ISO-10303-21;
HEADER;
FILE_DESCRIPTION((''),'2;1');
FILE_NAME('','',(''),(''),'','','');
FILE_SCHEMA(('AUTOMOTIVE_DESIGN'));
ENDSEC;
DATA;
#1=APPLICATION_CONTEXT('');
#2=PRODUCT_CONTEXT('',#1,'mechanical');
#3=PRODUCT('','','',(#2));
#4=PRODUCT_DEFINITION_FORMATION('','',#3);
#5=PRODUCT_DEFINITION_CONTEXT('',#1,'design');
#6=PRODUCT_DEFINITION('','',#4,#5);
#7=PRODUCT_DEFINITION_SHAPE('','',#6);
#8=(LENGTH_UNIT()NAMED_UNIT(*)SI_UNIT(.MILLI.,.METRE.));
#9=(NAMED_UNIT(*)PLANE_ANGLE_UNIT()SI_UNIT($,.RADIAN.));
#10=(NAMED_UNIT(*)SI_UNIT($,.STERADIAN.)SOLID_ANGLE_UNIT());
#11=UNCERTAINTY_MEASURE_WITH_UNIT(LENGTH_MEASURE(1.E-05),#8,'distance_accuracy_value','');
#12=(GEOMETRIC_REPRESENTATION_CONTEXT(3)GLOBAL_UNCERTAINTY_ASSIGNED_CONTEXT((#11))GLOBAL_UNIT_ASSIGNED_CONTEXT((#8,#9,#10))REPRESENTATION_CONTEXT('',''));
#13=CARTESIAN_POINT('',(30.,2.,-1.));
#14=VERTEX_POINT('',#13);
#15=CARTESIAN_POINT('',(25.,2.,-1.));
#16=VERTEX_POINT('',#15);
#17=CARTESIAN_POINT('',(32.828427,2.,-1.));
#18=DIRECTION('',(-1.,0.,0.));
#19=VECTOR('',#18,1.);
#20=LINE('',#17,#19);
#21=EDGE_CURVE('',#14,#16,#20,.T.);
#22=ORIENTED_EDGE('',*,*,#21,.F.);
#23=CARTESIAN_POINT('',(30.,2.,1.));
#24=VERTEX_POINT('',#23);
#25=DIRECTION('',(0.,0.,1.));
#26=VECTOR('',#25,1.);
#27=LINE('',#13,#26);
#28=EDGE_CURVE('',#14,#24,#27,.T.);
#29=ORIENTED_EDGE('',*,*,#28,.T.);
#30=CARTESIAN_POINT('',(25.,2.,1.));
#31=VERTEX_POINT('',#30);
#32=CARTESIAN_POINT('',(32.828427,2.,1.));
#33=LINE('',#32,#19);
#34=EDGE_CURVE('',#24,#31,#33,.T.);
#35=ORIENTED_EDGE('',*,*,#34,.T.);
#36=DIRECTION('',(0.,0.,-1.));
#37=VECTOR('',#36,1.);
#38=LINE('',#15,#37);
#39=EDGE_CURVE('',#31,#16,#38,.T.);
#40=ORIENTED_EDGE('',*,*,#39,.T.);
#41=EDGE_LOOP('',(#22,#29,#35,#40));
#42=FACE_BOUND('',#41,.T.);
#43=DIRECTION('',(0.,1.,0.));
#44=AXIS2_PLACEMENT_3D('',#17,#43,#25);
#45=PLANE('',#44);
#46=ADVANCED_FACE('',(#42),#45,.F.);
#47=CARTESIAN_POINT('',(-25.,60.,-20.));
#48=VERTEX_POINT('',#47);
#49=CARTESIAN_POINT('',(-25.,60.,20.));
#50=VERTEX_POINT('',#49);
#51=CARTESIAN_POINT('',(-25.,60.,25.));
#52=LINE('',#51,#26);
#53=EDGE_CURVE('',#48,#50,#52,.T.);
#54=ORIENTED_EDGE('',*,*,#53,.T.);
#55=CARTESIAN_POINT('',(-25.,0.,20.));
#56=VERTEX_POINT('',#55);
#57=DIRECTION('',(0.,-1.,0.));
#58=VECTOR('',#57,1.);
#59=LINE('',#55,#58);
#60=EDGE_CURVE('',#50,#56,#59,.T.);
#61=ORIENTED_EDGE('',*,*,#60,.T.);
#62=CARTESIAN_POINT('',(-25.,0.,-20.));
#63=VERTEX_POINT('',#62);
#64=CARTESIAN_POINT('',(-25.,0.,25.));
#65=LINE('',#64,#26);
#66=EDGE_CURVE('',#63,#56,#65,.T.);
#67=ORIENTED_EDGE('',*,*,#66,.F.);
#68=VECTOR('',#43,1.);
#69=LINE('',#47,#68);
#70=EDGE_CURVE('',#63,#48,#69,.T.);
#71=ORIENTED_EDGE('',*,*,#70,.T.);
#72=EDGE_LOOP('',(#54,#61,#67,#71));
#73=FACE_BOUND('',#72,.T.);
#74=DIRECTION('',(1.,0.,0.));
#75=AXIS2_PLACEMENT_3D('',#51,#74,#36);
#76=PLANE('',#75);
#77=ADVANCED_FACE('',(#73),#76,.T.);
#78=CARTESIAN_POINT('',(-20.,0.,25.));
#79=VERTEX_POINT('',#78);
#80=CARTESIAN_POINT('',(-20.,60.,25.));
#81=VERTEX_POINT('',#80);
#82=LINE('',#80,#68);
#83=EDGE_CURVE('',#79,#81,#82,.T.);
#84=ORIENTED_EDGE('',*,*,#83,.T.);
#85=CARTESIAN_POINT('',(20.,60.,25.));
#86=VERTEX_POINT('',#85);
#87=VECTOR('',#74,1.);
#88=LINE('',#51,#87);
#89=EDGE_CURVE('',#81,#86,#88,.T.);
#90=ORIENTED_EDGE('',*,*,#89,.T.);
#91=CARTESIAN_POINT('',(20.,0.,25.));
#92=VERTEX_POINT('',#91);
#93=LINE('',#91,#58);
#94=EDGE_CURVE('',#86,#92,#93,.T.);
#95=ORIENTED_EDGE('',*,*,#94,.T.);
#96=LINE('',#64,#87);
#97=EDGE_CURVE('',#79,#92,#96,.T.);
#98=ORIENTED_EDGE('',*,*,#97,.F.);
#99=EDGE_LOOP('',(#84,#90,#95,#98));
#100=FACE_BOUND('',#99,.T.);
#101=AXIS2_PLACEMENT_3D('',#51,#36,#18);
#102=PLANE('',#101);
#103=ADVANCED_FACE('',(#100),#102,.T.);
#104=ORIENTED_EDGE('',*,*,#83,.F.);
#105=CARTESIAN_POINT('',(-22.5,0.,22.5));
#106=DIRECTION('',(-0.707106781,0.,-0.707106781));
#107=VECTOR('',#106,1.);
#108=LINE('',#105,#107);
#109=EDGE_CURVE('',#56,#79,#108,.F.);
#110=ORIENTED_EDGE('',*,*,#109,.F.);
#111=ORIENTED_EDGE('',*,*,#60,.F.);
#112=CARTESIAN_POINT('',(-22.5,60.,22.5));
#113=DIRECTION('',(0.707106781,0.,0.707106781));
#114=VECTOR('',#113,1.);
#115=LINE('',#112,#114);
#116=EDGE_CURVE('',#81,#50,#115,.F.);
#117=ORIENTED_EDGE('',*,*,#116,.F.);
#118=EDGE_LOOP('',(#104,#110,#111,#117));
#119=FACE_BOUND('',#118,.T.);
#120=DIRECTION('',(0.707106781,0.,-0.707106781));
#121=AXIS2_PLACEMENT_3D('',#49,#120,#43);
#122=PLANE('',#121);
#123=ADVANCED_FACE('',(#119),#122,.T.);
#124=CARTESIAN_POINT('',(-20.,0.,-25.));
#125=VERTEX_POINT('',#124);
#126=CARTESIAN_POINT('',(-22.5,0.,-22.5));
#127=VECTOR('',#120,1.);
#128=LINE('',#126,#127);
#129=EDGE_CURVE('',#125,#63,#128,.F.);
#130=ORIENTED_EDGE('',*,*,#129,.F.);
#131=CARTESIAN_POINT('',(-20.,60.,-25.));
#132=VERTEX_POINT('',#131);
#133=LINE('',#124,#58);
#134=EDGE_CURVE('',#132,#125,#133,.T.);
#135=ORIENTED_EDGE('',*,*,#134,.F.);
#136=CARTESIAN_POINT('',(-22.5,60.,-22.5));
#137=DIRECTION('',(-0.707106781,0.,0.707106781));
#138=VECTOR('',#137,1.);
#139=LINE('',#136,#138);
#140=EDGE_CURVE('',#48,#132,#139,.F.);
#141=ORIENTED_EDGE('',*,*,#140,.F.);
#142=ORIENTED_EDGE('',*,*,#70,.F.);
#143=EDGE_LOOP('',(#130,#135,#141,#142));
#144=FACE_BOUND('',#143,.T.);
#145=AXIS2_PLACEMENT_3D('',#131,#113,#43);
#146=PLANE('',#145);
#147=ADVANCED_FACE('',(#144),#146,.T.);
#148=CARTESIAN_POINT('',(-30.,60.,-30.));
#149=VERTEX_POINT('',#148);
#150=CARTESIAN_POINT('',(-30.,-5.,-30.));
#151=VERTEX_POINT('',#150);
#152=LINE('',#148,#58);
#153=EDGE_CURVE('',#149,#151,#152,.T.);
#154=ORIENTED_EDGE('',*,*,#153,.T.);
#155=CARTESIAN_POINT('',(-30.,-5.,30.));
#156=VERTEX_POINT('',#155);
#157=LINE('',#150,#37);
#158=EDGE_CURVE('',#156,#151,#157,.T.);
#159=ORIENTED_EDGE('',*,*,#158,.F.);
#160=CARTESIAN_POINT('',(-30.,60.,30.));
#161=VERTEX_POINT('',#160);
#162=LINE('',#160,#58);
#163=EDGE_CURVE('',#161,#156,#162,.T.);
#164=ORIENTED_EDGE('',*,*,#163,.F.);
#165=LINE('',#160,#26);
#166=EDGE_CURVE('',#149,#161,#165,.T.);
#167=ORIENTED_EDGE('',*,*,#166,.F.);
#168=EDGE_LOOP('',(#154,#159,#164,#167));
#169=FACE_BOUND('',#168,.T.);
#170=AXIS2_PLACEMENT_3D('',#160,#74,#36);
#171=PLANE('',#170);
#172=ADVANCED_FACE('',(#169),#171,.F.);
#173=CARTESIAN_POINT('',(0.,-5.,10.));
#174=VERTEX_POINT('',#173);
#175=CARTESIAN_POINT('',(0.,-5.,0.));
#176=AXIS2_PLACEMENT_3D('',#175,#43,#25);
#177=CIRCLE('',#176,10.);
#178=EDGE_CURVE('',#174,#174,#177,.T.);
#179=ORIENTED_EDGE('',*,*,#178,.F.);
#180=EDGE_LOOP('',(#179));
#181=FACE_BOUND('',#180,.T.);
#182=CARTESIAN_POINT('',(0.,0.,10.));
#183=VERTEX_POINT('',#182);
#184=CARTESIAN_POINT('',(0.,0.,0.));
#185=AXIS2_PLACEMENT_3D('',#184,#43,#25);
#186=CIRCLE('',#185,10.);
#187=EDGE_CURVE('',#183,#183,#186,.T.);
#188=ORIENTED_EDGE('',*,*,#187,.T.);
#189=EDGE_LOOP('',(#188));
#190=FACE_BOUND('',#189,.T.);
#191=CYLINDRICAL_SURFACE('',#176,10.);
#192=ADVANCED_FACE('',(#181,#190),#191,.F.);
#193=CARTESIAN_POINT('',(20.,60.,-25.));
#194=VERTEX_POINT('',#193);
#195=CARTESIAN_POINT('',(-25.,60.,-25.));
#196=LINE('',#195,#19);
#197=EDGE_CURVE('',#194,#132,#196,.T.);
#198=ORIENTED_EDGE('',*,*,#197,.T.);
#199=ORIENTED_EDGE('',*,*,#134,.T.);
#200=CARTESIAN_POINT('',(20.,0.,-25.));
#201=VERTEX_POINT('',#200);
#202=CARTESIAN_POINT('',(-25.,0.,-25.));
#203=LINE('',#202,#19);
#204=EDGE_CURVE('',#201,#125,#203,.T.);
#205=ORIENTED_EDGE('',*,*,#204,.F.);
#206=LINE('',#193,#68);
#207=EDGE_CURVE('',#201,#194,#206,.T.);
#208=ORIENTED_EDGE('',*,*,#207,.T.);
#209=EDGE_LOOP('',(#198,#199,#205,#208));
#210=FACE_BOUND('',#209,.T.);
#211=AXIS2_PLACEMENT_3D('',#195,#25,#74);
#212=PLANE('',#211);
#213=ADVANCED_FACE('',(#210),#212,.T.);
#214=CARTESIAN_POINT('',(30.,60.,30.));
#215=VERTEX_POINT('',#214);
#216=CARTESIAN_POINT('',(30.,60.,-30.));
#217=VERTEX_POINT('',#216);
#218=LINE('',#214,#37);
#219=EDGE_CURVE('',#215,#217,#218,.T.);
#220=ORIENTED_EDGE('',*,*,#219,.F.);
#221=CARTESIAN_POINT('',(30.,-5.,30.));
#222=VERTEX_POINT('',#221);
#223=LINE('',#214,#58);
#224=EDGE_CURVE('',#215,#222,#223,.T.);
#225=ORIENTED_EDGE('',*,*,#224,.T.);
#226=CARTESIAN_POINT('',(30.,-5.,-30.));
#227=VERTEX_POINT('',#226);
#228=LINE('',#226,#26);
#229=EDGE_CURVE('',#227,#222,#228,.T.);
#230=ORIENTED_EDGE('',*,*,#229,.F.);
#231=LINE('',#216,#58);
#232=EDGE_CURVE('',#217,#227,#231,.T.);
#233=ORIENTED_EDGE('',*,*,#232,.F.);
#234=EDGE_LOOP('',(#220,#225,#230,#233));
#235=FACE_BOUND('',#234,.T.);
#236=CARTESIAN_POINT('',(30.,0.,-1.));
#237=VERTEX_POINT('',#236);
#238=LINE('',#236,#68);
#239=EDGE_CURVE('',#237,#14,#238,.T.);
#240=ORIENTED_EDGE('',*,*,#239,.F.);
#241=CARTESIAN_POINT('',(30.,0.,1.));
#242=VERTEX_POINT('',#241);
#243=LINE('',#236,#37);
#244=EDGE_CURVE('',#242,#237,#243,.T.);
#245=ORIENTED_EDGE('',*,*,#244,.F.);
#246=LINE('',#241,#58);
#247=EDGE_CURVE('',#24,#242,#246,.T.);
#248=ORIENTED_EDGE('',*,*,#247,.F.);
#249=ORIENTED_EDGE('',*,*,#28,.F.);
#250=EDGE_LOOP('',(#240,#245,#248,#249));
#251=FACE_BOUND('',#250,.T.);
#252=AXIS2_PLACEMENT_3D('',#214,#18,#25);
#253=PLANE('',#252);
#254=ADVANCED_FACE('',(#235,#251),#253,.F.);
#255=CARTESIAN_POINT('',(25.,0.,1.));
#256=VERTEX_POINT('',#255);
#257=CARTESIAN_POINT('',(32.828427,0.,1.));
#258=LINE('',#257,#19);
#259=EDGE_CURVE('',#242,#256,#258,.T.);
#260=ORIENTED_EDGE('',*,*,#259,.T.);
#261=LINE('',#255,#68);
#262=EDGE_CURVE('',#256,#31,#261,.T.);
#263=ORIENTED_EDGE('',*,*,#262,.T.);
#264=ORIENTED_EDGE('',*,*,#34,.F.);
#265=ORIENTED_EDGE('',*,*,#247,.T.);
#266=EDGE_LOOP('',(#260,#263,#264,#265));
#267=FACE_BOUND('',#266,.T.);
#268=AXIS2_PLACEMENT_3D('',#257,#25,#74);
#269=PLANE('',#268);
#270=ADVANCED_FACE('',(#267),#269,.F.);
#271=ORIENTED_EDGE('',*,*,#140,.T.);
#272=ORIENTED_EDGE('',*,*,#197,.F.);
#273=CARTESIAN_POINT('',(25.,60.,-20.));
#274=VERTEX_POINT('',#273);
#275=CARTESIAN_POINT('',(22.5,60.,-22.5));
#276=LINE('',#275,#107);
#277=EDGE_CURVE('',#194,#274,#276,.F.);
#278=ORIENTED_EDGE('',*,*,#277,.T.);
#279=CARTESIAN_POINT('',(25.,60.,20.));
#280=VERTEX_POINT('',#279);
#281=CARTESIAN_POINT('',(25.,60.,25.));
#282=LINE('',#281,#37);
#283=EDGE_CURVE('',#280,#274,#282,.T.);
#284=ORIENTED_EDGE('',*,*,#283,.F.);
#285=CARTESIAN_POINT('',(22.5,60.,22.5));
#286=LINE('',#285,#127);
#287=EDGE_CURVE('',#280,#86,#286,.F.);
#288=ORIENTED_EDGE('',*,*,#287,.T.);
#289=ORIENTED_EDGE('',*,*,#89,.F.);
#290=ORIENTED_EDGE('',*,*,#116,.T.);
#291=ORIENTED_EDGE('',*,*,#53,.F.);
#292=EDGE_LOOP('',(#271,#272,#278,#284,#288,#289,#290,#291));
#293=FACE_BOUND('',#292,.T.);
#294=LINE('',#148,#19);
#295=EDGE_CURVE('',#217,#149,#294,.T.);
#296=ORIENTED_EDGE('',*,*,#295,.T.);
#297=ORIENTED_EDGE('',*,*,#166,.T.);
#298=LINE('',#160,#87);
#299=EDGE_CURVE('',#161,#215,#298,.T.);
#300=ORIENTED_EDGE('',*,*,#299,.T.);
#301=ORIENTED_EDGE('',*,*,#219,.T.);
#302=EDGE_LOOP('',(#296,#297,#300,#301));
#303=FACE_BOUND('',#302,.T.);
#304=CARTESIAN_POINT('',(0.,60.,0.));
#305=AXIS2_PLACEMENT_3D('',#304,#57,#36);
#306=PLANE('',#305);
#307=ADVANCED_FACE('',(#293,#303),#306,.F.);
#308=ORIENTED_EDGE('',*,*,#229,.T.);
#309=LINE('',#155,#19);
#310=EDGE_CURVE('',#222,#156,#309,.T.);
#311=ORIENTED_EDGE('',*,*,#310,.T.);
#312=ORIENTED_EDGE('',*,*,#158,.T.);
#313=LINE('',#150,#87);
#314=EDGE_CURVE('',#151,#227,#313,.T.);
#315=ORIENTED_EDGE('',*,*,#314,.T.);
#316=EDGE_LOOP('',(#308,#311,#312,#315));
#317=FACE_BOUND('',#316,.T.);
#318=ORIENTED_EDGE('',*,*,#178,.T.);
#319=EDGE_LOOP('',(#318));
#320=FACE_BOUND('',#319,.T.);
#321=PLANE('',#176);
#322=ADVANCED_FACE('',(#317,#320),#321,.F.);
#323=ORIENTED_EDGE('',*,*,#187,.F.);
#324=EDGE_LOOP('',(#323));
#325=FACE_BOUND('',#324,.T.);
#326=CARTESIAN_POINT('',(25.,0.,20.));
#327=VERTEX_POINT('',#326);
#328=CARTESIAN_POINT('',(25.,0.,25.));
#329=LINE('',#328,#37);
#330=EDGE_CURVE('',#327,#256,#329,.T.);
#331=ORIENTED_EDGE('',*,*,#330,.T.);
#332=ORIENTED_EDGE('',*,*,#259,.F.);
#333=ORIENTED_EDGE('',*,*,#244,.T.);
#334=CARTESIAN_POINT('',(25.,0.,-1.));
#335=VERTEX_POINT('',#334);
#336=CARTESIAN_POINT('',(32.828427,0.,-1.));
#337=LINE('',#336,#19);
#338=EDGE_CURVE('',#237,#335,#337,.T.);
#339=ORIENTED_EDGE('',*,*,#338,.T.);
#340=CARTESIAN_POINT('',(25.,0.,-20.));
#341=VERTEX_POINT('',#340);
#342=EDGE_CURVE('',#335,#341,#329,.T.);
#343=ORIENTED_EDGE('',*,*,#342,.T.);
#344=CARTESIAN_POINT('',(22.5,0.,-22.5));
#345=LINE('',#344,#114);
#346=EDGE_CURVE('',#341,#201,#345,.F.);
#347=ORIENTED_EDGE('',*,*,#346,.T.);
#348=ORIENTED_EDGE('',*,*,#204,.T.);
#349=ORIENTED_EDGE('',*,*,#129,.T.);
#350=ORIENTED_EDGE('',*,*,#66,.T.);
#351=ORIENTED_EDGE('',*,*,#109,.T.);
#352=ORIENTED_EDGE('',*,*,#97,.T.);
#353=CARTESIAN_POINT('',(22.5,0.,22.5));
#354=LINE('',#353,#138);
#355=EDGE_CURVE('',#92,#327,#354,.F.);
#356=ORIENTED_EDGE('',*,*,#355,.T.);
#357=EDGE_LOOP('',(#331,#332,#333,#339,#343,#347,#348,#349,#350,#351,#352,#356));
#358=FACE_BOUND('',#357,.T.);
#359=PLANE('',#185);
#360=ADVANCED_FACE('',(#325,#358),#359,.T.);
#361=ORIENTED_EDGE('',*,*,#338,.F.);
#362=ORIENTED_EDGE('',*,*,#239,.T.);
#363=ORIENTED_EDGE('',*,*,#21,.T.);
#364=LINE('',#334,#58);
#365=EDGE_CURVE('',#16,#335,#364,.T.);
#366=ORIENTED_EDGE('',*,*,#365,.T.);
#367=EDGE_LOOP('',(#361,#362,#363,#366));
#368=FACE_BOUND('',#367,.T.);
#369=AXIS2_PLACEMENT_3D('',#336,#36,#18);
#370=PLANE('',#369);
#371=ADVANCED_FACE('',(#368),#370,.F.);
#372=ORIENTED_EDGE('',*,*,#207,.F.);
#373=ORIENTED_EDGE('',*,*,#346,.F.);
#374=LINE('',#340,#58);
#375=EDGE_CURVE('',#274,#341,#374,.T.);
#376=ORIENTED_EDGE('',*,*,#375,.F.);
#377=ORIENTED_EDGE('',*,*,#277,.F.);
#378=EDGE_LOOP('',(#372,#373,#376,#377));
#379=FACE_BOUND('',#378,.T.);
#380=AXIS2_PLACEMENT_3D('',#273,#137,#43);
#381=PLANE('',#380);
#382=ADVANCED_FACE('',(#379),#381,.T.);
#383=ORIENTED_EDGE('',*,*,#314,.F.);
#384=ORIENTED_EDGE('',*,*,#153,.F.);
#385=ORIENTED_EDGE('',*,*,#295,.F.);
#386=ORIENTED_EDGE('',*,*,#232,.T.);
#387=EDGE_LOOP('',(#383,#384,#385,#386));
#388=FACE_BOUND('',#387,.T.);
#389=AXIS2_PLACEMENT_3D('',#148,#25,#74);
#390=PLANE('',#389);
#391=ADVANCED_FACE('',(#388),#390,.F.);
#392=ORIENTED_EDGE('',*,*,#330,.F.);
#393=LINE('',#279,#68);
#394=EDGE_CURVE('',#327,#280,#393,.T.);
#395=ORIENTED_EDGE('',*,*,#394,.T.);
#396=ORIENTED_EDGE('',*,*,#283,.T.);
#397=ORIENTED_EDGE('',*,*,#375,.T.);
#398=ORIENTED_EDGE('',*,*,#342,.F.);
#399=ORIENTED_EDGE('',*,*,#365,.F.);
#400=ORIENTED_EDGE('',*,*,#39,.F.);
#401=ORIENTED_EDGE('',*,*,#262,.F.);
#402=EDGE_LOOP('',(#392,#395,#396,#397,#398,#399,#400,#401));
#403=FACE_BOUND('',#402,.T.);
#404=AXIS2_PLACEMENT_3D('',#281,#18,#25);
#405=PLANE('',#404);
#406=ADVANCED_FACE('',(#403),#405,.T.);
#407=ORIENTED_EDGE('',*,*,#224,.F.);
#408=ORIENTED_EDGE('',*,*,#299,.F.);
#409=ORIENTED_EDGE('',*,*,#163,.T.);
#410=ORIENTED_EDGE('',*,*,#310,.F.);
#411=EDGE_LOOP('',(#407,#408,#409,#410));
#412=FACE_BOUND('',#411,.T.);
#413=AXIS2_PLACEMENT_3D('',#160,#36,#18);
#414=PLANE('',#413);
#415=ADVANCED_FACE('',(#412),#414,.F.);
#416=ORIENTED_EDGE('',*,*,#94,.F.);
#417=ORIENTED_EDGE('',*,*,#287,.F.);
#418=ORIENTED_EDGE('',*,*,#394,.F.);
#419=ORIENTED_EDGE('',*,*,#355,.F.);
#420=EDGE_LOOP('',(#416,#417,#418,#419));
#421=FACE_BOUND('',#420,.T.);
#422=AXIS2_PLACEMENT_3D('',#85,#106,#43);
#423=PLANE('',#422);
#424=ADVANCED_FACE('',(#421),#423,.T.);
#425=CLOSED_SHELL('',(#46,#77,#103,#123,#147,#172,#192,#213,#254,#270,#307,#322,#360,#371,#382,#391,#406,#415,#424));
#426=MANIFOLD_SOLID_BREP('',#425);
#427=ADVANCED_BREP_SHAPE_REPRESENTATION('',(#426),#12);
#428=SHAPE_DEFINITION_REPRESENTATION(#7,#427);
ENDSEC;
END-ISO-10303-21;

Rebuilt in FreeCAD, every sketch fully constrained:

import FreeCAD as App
import Part
import Sketcher
from FreeCAD import Vector


def edges_at(feature, points):
    """Names of the edges that pass closest to the given points."""
    edges = feature.Shape.Edges
    near = lambda p: min(range(len(edges)), key=lambda i: edges[i].distToShape(Part.Vertex(*p))[0])
    return sorted({f"Edge{near(p) + 1}" for p in points})


def add_polygon(sketch, points):
    """Adds a closed chain of lines whose ends are joined by coincident constraints."""
    first, n = sketch.GeometryCount, len(points)
    for a, b in zip(points, points[1:] + points[:1]):
        sketch.addGeometry(Part.LineSegment(App.Vector(*a, 0), App.Vector(*b, 0)), False)
    for i in range(n):
        sketch.addConstraint(Sketcher.Constraint("Coincident", first + i, 2, first + (i + 1) % n, 1))

doc = App.newDocument("Part")
body = doc.addObject("PartDesign::Body", "Body")

# Sketch on XZ plane
sketch1 = body.newObject("Sketcher::SketchObject", "Sketch")
sketch1.AttachmentSupport = (doc.getObject("XZ_Plane"), [""])
sketch1.MapMode = "FlatFace"
add_polygon(sketch1, [(-30, -30), (-30, 30), (30, 30), (30, -30)])  # lines 0-3
add_polygon(sketch1, [(25, 25), (-25, 25), (-25, -25), (25, -25)])  # lines 4-7
sketch1.addConstraint(Sketcher.Constraint("Vertical", 0))
sketch1.addConstraint(Sketcher.Constraint("Horizontal", 1))
sketch1.addConstraint(Sketcher.Constraint("Vertical", 2))
sketch1.addConstraint(Sketcher.Constraint("Horizontal", 3))
sketch1.addConstraint(Sketcher.Constraint("Horizontal", 4))
sketch1.addConstraint(Sketcher.Constraint("Vertical", 5))
sketch1.addConstraint(Sketcher.Constraint("Horizontal", 6))
sketch1.addConstraint(Sketcher.Constraint("Vertical", 7))
sketch1.addConstraint(Sketcher.Constraint("Symmetric", 0, 2, 2, 2, -1, 1))
sketch1.addConstraint(Sketcher.Constraint("Symmetric", 4, 2, 6, 2, -1, 1))
sketch1.addConstraint(Sketcher.Constraint("Equal", 3, 0))
sketch1.addConstraint(Sketcher.Constraint("Equal", 6, 5))
sketch1.addConstraint(Sketcher.Constraint("DistanceX", 1, 1, 1, 2, 60.0))
sketch1.addConstraint(Sketcher.Constraint("DistanceX", 4, 2, 4, 1, 50.0))
pad1 = body.newObject("PartDesign::Pad", "Pad")
pad1.Profile = sketch1
pad1.Length = 60
pad1.Reversed = True

# Sketch on XZ plane
sketch2 = body.newObject("Sketcher::SketchObject", "Sketch001")
sketch2.AttachmentSupport = (doc.getObject("XZ_Plane"), [""])
sketch2.MapMode = "FlatFace"
add_polygon(sketch2, [(-30, 30), (-30, -30), (30, -30), (30, 30)])  # lines 0-3
sketch2.addConstraint(Sketcher.Constraint("Vertical", 0))
sketch2.addConstraint(Sketcher.Constraint("Horizontal", 1))
sketch2.addConstraint(Sketcher.Constraint("Vertical", 2))
sketch2.addConstraint(Sketcher.Constraint("Horizontal", 3))
sketch2.addConstraint(Sketcher.Constraint("Symmetric", 0, 2, 2, 2, -1, 1))
sketch2.addConstraint(Sketcher.Constraint("Equal", 3, 0))
sketch2.addConstraint(Sketcher.Constraint("DistanceX", 1, 1, 1, 2, 60.0))
pad2 = body.newObject("PartDesign::Pad", "Pad001")
pad2.Profile = sketch2
pad2.Length = 5

# Sketch on XZ plane
sketch3 = body.newObject("Sketcher::SketchObject", "Sketch002")
sketch3.AttachmentSupport = (doc.getObject("XZ_Plane"), [""])
sketch3.MapMode = "FlatFace"
sketch3.addGeometry(Part.Circle(Vector(0, 0, 0), Vector(0, 0, 1), 10), False)
sketch3.addConstraint(Sketcher.Constraint("Coincident", 0, 3, -1, 1))
sketch3.addConstraint(Sketcher.Constraint("Diameter", 0, 20.0))
pocket1 = body.newObject("PartDesign::Pocket", "Pocket")
pocket1.Profile = sketch3
pocket1.Type = "ThroughAll"
pocket1.Reversed = True
doc.recompute()

chamfer = body.newObject("PartDesign::Chamfer", "Chamfer")
chamfer.Base = (pocket1, edges_at(pocket1, [
    (25, 30, 25),
    (25, 30, -25),
    (-25, 30, -25),
    (-25, 30, 25),
]))
chamfer.Size = 5

# Sketch on YZ plane
sketch4 = body.newObject("Sketcher::SketchObject", "Sketch003")
sketch4.AttachmentSupport = (doc.getObject("YZ_Plane"), [""])
sketch4.MapMode = "FlatFace"
sketch4.AttachmentOffset = App.Placement(Vector(0, 0, 25), App.Rotation())
add_polygon(sketch4, [(2, -1), (0, -1), (0, 1), (2, 1)])  # lines 0-3
sketch4.addConstraint(Sketcher.Constraint("Horizontal", 0))
sketch4.addConstraint(Sketcher.Constraint("Vertical", 1))
sketch4.addConstraint(Sketcher.Constraint("Horizontal", 2))
sketch4.addConstraint(Sketcher.Constraint("Vertical", 3))
sketch4.addConstraint(Sketcher.Constraint("Symmetric", 0, 2, 1, 2, -1, 1))
sketch4.addConstraint(Sketcher.Constraint("Equal", 2, 1))
sketch4.addConstraint(Sketcher.Constraint("DistanceX", 0, 2, 0, 1, 2.0))
pocket2 = body.newObject("PartDesign::Pocket", "Pocket001")
pocket2.Profile = sketch4
pocket2.Length = 5
pocket2.Reversed = True

doc.recompute()
